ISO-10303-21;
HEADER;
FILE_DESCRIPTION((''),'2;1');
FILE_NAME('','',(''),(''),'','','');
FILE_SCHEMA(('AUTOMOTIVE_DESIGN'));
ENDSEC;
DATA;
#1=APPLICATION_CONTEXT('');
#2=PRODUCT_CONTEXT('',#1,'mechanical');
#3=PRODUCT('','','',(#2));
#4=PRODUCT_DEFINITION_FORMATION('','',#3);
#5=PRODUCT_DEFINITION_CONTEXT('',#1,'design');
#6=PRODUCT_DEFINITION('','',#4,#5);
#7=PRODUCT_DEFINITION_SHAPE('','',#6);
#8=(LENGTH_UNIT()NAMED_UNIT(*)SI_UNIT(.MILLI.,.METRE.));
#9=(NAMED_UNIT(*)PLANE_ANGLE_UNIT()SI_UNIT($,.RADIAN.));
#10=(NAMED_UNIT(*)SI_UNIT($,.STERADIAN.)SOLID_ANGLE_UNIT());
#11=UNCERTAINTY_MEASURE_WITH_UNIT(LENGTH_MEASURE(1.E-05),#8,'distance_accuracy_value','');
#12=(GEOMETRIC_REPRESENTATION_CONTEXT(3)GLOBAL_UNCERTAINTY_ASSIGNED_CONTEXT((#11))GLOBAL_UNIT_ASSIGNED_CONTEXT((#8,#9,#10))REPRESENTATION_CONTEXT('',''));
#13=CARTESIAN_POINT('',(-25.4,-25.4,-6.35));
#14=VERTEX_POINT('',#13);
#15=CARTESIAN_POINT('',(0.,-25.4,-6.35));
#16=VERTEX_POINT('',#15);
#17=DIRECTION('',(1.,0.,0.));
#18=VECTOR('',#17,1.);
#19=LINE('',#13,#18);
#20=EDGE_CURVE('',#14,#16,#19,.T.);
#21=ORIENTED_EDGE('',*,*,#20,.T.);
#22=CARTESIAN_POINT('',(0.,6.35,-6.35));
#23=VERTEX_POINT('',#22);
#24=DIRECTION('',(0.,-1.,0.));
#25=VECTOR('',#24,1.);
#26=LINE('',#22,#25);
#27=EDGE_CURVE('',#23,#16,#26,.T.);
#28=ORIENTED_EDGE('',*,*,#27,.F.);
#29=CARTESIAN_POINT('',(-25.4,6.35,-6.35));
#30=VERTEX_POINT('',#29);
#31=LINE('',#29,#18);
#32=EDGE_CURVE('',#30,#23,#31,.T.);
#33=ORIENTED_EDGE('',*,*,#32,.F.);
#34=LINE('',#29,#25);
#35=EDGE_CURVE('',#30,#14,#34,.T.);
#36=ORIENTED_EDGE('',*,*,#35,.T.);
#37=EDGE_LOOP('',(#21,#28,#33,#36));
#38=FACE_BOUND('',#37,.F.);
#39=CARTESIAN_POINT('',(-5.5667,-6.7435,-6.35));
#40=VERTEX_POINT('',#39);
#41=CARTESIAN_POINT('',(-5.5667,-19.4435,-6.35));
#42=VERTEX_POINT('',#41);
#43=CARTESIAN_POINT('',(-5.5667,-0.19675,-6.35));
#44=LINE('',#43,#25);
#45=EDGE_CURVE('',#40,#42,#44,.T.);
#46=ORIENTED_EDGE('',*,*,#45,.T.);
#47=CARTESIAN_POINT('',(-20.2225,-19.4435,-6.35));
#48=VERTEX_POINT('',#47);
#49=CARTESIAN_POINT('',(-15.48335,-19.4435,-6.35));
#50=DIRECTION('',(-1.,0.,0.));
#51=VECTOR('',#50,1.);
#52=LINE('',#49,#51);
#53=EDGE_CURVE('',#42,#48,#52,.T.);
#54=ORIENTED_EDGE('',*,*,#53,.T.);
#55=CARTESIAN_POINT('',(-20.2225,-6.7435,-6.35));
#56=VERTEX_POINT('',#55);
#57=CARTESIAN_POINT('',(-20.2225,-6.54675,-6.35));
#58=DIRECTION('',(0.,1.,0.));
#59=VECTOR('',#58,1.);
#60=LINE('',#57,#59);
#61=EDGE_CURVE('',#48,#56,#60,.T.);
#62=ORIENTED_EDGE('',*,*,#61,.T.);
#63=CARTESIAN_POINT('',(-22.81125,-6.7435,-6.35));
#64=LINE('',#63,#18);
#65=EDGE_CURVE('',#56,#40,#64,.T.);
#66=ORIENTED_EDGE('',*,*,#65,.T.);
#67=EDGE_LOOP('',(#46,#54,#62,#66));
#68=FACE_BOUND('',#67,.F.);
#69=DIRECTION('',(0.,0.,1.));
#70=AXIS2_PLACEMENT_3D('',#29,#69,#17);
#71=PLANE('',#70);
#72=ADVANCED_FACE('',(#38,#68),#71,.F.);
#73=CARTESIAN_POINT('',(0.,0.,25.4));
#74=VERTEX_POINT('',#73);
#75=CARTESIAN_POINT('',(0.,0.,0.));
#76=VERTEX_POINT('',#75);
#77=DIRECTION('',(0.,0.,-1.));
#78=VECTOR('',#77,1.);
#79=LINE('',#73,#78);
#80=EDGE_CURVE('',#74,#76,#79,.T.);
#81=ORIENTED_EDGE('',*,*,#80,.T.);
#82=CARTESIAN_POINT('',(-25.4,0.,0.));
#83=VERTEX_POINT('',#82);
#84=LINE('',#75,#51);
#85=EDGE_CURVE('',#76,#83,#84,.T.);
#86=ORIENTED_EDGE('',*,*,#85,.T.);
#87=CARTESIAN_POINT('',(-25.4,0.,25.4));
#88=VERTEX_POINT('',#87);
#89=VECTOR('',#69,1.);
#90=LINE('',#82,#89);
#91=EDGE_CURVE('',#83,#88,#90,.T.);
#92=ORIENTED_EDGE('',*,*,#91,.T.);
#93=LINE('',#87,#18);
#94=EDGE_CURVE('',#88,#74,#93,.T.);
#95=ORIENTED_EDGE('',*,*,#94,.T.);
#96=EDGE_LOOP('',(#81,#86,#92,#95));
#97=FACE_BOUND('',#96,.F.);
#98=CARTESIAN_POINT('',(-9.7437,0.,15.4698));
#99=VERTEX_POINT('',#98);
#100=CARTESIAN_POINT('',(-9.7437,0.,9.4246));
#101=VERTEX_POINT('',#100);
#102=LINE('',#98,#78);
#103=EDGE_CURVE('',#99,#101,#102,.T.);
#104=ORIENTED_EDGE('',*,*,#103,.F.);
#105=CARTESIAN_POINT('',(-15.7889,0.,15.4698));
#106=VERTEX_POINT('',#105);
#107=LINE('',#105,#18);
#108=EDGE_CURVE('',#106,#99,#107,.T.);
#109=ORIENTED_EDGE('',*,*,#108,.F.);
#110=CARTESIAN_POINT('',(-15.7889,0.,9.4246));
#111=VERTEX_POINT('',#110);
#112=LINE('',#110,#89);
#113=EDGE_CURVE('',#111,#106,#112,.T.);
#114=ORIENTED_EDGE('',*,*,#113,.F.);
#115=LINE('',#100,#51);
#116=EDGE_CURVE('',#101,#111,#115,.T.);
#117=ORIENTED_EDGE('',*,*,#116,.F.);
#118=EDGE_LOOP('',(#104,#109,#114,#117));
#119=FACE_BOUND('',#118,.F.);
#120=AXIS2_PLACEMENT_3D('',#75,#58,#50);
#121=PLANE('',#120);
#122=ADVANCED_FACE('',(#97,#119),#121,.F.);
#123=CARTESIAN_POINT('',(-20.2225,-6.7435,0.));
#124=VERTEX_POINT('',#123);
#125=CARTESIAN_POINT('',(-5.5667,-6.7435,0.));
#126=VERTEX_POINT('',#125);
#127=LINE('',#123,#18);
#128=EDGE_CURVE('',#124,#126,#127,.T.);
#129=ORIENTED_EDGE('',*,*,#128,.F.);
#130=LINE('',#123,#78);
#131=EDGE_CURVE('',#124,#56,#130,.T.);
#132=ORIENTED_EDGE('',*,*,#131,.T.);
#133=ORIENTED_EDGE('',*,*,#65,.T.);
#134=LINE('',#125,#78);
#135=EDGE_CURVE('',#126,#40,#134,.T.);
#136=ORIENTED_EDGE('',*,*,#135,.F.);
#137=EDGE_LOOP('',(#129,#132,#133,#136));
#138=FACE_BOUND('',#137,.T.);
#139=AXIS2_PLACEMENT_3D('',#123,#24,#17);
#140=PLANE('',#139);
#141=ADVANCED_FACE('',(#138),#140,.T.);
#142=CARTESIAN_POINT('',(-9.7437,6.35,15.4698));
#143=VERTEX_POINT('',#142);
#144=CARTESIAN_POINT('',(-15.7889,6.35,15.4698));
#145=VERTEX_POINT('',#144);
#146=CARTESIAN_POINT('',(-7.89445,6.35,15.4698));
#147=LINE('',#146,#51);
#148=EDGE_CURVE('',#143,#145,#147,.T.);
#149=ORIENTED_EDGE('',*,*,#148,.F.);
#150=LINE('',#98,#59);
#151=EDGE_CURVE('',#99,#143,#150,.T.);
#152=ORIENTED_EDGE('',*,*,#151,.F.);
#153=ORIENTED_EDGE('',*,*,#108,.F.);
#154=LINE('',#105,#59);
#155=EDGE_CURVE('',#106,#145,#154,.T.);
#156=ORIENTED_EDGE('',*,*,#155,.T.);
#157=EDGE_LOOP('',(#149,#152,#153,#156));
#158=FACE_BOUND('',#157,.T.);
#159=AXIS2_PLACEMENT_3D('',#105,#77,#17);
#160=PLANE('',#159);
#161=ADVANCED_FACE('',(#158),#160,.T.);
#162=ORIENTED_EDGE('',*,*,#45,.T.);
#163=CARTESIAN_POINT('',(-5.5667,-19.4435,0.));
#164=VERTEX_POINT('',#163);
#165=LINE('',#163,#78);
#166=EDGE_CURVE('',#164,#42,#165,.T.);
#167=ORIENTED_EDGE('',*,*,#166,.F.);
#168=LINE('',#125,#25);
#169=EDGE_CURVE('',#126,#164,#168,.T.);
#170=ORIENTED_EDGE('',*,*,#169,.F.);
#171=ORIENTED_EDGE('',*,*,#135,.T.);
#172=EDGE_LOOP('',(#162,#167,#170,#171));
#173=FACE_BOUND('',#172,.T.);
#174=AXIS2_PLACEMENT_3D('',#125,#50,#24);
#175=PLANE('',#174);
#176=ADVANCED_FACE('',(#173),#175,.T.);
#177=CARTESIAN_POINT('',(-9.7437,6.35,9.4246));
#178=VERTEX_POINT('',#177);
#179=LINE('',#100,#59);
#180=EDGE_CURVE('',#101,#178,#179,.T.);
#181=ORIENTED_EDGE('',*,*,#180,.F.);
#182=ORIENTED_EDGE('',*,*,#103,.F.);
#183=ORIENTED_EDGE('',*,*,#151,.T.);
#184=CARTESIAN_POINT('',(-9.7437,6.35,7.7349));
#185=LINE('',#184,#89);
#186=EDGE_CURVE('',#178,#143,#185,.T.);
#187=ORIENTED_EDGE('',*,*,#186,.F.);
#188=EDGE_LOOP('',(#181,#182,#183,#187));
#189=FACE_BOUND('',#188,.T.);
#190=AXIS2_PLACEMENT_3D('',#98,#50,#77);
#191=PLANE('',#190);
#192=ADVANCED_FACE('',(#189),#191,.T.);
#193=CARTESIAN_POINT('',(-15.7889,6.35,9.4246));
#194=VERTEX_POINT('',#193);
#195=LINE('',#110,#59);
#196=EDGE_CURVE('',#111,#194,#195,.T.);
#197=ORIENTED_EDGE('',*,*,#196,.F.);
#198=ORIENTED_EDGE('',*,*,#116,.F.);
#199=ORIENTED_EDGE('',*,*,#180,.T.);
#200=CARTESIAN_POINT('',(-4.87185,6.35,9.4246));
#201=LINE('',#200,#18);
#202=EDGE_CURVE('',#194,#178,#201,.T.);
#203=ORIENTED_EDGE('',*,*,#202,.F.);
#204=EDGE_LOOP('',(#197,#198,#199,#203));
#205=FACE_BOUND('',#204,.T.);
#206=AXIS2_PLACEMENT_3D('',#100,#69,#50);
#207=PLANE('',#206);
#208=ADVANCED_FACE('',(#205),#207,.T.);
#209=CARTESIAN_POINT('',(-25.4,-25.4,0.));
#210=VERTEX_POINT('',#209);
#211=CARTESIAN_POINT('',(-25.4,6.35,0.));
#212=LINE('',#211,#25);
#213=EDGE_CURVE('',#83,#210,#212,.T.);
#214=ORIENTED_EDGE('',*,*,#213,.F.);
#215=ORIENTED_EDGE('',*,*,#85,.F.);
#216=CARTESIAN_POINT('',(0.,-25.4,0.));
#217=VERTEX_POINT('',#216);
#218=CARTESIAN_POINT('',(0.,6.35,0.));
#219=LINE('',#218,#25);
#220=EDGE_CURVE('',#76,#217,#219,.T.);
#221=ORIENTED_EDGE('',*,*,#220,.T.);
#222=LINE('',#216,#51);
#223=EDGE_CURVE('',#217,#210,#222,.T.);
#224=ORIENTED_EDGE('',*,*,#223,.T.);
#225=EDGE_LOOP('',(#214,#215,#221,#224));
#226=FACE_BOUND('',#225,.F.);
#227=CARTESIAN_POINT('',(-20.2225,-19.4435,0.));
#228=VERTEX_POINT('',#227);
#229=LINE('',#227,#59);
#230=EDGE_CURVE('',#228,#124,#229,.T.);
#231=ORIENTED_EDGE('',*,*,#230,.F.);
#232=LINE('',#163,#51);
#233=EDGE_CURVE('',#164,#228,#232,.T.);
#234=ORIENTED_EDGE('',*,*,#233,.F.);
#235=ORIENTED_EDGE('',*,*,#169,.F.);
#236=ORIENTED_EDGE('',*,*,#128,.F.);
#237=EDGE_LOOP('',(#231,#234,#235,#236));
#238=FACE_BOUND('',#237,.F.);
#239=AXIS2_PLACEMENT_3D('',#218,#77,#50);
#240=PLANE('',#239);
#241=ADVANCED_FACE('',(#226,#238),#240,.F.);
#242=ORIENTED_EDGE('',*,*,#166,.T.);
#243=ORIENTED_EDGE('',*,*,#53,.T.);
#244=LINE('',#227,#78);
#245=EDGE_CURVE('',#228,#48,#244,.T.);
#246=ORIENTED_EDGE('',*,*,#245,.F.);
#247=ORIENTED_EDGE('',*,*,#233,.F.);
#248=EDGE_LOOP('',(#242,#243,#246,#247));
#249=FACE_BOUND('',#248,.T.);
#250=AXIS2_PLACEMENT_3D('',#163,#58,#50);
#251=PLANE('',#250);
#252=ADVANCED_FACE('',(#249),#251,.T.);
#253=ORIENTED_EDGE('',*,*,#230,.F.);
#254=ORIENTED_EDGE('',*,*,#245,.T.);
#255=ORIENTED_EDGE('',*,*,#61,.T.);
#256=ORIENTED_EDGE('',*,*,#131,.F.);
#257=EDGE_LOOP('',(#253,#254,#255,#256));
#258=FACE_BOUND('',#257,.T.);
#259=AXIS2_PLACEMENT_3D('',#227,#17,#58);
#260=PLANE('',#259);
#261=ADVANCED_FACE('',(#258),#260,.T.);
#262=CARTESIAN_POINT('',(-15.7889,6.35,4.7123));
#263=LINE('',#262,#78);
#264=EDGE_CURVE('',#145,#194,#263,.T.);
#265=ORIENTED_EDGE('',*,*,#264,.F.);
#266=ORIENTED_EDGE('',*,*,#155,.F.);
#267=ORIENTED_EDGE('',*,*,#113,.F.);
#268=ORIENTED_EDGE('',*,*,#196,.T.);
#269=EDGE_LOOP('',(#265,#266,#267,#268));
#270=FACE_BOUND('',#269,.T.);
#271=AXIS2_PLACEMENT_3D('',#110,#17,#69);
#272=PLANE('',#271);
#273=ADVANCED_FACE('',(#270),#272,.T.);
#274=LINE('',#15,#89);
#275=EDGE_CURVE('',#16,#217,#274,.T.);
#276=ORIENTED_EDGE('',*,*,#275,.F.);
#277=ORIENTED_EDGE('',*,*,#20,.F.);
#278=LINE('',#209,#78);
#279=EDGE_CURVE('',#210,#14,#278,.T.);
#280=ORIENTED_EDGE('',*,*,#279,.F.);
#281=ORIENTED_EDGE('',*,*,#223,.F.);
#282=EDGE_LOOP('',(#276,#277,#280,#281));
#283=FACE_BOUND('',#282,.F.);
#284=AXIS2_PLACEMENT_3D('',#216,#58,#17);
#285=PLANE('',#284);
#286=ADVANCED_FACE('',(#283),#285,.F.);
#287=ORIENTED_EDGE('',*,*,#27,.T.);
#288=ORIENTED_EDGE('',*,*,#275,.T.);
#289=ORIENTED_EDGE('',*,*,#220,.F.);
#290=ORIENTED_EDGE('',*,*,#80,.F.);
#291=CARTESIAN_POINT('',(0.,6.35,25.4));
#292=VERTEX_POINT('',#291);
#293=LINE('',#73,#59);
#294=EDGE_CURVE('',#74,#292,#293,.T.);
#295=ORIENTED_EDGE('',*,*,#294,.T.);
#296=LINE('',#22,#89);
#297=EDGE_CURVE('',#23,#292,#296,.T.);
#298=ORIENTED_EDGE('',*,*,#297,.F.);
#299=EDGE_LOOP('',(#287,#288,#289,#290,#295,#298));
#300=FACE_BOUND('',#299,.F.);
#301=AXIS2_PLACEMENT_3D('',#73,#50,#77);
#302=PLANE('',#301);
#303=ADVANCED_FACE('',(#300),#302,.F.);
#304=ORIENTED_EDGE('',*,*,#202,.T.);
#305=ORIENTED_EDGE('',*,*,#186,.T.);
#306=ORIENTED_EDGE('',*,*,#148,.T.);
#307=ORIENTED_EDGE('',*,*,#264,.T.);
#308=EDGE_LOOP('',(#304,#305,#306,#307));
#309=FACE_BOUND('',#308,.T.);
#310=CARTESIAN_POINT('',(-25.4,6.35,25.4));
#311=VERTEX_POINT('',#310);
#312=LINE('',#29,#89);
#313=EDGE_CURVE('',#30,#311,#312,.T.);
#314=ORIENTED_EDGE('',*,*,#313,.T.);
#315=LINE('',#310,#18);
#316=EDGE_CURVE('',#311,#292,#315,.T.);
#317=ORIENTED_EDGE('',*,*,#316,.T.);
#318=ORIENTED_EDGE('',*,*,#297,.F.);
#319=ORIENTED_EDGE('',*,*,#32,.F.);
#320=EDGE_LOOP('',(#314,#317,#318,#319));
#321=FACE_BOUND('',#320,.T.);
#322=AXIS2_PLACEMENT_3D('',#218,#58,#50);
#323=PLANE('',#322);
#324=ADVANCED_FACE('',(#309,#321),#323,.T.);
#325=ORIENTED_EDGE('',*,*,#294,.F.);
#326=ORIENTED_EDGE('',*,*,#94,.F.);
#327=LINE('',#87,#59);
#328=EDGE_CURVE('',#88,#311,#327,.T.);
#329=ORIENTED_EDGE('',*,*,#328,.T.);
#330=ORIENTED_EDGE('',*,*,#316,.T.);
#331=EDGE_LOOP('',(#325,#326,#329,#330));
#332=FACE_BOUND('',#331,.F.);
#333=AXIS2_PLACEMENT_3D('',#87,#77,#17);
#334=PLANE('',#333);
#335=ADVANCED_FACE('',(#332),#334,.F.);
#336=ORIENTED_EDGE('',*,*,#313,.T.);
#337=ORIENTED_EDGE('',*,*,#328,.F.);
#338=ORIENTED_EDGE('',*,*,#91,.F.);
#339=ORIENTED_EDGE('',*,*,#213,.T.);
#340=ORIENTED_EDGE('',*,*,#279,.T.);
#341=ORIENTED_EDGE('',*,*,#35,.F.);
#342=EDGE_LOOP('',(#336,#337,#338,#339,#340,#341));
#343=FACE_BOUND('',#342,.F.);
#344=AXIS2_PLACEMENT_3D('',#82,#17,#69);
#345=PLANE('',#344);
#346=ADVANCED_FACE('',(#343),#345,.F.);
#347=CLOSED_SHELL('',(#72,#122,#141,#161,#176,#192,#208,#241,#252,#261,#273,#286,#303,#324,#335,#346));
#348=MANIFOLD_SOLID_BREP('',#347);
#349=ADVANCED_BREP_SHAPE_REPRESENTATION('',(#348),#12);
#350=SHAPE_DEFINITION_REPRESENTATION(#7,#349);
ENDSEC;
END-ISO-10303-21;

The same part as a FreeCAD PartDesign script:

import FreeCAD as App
import Part
import Sketcher
Q = App.Units.Quantity


def add_polygon(sketch, points):
    """Adds a closed chain of lines whose ends are joined by coincident constraints."""
    first, n = sketch.GeometryCount, len(points)
    for a, b in zip(points, points[1:] + points[:1]):
        sketch.addGeometry(Part.LineSegment(App.Vector(*a, 0), App.Vector(*b, 0)), False)
    for i in range(n):
        sketch.addConstraint(Sketcher.Constraint("Coincident", first + i, 2, first + (i + 1) % n, 1))

doc = App.newDocument("Part")
params = doc.addObject("Spreadsheet::Sheet", "Params")
for row, (alias, value) in enumerate([
    ("sketch1_width", "1 in"),
    ("pad1_length", "0.25 in"),
    ("sketch2_height", "0.25 in"),
    ("sketch2_width", "1 in"),
    ("pad2_length", "1.25 in"),
    ("sketch3_height", "0.5 in"),
    ("sketch3_width", "0.577 in"),
    ("pocket1_length", "1.25 in"),
    ("sketch4_width", "0.238 in"),
    ("pocket2_length", "1 in"),
], start=1):
    params.set(f"A{row}", alias)
    params.set(f"B{row}", "=" + value)
    params.setAlias(f"B{row}", alias)

body = doc.addObject("PartDesign::Body", "Body")

# Sketch on XZ plane
sketch1 = body.newObject("Sketcher::SketchObject", "Sketch")
sketch1.AttachmentSupport = (doc.getObject("XZ_Plane"), [""])
sketch1.MapMode = "FlatFace"
add_polygon(sketch1, [(0, 25.4), (0, 0), (-25.4, 0), (-25.4, 25.4)])  # lines 0-3
sketch1.addConstraint([
    Sketcher.Constraint("Vertical", 0),
    Sketcher.Constraint("Horizontal", 1),
    Sketcher.Constraint("Vertical", 2),
    Sketcher.Constraint("Horizontal", 3),
    Sketcher.Constraint("Coincident", 0, 2, -1, 1),
    Sketcher.Constraint("Equal", 3, 0),
    Sketcher.Constraint("DistanceX", 1, 2, 1, 1, Q("1 in")),
])
sketch1.setExpression("Constraints[10]", "Params.sketch1_width")
pad1 = body.newObject("PartDesign::Pad", "Pad")
pad1.Profile = sketch1
pad1.setExpression("Length", "Params.pad1_length")
pad1.Reversed = True

# Sketch on XZ plane
sketch2 = body.newObject("Sketcher::SketchObject", "Sketch001")
sketch2.AttachmentSupport = (doc.getObject("XZ_Plane"), [""])
sketch2.MapMode = "FlatFace"
sketch2.AttachmentOffset = App.Placement(App.Vector(0, 0, -0.25 * 25.4), App.Rotation())
add_polygon(sketch2, [(-25.4, 0), (0, 0), (0, -6.35), (-25.4, -6.35)])  # lines 0-3
sketch2.addConstraint([
    Sketcher.Constraint("Horizontal", 0),
    Sketcher.Constraint("Vertical", 1),
    Sketcher.Constraint("Horizontal", 2),
    Sketcher.Constraint("Vertical", 3),
    Sketcher.Constraint("Coincident", 0, 2, -1, 1),
    Sketcher.Constraint("DistanceY", 1, 2, 1, 1, Q("0.25 in")),
    Sketcher.Constraint("DistanceX", 0, 1, 0, 2, Q("1 in")),
])
sketch2.setExpression("Constraints[9]", "Params.sketch2_height")
sketch2.setExpression("Constraints[10]", "Params.sketch2_width")
pad2 = body.newObject("PartDesign::Pad", "Pad001")
pad2.Profile = sketch2
pad2.setExpression("Length", "Params.pad2_length")

# Sketch on XY plane
sketch3 = body.newObject("Sketcher::SketchObject", "Sketch002")
sketch3.AttachmentSupport = (doc.getObject("XY_Plane"), [""])
sketch3.MapMode = "FlatFace"
add_polygon(sketch3, [(-5.5667, -6.7435), (-20.2225, -6.7435), (-20.2225, -19.4435), (-5.5667, -19.4435)])  # lines 0-3
sketch3.addConstraint([
    Sketcher.Constraint("Horizontal", 0),
    Sketcher.Constraint("Vertical", 1),
    Sketcher.Constraint("Horizontal", 2),
    Sketcher.Constraint("Vertical", 3),
    Sketcher.Constraint("DistanceY", 1, 2, 1, 1, Q("0.5 in")),
    Sketcher.Constraint("DistanceX", 0, 2, 0, 1, Q("0.577 in")),
    Sketcher.Constraint("DistanceY", 0, 2, -1, 1, Q("0.2655 in")),
    Sketcher.Constraint("DistanceX", 0, 2, -1, 1, Q("20.2225 mm")),
])
sketch3.setExpression("Constraints[8]", "Params.sketch3_height")
sketch3.setExpression("Constraints[9]", "Params.sketch3_width")
pocket1 = body.newObject("PartDesign::Pocket", "Pocket")
pocket1.Profile = sketch3
pocket1.setExpression("Length", "Params.pocket1_length")

# Sketch on XZ plane
sketch4 = body.newObject("Sketcher::SketchObject", "Sketch003")
sketch4.AttachmentSupport = (doc.getObject("XZ_Plane"), [""])
sketch4.MapMode = "FlatFace"
add_polygon(sketch4, [(-9.7437, 15.4698), (-15.7889, 15.4698), (-15.7889, 9.4246), (-9.7437, 9.4246)])  # lines 0-3
sketch4.addConstraint([
    Sketcher.Constraint("Horizontal", 0),
    Sketcher.Constraint("Vertical", 1),
    Sketcher.Constraint("Horizontal", 2),
    Sketcher.Constraint("Vertical", 3),
    Sketcher.Constraint("Equal", 2, 1),
    Sketcher.Constraint("DistanceX", 0, 2, 0, 1, Q("0.238 in")),
    Sketcher.Constraint("DistanceX", 0, 2, -1, 1, Q("0.6216 in")),
    Sketcher.Constraint("DistanceY", -1, 1, 0, 2, Q("15.4698 mm")),
])
sketch4.setExpression("Constraints[9]", "Params.sketch4_width")
pocket2 = body.newObject("PartDesign::Pocket", "Pocket001")
pocket2.Profile = sketch4
pocket2.setExpression("Length", "Params.pocket2_length")

doc.recompute()
